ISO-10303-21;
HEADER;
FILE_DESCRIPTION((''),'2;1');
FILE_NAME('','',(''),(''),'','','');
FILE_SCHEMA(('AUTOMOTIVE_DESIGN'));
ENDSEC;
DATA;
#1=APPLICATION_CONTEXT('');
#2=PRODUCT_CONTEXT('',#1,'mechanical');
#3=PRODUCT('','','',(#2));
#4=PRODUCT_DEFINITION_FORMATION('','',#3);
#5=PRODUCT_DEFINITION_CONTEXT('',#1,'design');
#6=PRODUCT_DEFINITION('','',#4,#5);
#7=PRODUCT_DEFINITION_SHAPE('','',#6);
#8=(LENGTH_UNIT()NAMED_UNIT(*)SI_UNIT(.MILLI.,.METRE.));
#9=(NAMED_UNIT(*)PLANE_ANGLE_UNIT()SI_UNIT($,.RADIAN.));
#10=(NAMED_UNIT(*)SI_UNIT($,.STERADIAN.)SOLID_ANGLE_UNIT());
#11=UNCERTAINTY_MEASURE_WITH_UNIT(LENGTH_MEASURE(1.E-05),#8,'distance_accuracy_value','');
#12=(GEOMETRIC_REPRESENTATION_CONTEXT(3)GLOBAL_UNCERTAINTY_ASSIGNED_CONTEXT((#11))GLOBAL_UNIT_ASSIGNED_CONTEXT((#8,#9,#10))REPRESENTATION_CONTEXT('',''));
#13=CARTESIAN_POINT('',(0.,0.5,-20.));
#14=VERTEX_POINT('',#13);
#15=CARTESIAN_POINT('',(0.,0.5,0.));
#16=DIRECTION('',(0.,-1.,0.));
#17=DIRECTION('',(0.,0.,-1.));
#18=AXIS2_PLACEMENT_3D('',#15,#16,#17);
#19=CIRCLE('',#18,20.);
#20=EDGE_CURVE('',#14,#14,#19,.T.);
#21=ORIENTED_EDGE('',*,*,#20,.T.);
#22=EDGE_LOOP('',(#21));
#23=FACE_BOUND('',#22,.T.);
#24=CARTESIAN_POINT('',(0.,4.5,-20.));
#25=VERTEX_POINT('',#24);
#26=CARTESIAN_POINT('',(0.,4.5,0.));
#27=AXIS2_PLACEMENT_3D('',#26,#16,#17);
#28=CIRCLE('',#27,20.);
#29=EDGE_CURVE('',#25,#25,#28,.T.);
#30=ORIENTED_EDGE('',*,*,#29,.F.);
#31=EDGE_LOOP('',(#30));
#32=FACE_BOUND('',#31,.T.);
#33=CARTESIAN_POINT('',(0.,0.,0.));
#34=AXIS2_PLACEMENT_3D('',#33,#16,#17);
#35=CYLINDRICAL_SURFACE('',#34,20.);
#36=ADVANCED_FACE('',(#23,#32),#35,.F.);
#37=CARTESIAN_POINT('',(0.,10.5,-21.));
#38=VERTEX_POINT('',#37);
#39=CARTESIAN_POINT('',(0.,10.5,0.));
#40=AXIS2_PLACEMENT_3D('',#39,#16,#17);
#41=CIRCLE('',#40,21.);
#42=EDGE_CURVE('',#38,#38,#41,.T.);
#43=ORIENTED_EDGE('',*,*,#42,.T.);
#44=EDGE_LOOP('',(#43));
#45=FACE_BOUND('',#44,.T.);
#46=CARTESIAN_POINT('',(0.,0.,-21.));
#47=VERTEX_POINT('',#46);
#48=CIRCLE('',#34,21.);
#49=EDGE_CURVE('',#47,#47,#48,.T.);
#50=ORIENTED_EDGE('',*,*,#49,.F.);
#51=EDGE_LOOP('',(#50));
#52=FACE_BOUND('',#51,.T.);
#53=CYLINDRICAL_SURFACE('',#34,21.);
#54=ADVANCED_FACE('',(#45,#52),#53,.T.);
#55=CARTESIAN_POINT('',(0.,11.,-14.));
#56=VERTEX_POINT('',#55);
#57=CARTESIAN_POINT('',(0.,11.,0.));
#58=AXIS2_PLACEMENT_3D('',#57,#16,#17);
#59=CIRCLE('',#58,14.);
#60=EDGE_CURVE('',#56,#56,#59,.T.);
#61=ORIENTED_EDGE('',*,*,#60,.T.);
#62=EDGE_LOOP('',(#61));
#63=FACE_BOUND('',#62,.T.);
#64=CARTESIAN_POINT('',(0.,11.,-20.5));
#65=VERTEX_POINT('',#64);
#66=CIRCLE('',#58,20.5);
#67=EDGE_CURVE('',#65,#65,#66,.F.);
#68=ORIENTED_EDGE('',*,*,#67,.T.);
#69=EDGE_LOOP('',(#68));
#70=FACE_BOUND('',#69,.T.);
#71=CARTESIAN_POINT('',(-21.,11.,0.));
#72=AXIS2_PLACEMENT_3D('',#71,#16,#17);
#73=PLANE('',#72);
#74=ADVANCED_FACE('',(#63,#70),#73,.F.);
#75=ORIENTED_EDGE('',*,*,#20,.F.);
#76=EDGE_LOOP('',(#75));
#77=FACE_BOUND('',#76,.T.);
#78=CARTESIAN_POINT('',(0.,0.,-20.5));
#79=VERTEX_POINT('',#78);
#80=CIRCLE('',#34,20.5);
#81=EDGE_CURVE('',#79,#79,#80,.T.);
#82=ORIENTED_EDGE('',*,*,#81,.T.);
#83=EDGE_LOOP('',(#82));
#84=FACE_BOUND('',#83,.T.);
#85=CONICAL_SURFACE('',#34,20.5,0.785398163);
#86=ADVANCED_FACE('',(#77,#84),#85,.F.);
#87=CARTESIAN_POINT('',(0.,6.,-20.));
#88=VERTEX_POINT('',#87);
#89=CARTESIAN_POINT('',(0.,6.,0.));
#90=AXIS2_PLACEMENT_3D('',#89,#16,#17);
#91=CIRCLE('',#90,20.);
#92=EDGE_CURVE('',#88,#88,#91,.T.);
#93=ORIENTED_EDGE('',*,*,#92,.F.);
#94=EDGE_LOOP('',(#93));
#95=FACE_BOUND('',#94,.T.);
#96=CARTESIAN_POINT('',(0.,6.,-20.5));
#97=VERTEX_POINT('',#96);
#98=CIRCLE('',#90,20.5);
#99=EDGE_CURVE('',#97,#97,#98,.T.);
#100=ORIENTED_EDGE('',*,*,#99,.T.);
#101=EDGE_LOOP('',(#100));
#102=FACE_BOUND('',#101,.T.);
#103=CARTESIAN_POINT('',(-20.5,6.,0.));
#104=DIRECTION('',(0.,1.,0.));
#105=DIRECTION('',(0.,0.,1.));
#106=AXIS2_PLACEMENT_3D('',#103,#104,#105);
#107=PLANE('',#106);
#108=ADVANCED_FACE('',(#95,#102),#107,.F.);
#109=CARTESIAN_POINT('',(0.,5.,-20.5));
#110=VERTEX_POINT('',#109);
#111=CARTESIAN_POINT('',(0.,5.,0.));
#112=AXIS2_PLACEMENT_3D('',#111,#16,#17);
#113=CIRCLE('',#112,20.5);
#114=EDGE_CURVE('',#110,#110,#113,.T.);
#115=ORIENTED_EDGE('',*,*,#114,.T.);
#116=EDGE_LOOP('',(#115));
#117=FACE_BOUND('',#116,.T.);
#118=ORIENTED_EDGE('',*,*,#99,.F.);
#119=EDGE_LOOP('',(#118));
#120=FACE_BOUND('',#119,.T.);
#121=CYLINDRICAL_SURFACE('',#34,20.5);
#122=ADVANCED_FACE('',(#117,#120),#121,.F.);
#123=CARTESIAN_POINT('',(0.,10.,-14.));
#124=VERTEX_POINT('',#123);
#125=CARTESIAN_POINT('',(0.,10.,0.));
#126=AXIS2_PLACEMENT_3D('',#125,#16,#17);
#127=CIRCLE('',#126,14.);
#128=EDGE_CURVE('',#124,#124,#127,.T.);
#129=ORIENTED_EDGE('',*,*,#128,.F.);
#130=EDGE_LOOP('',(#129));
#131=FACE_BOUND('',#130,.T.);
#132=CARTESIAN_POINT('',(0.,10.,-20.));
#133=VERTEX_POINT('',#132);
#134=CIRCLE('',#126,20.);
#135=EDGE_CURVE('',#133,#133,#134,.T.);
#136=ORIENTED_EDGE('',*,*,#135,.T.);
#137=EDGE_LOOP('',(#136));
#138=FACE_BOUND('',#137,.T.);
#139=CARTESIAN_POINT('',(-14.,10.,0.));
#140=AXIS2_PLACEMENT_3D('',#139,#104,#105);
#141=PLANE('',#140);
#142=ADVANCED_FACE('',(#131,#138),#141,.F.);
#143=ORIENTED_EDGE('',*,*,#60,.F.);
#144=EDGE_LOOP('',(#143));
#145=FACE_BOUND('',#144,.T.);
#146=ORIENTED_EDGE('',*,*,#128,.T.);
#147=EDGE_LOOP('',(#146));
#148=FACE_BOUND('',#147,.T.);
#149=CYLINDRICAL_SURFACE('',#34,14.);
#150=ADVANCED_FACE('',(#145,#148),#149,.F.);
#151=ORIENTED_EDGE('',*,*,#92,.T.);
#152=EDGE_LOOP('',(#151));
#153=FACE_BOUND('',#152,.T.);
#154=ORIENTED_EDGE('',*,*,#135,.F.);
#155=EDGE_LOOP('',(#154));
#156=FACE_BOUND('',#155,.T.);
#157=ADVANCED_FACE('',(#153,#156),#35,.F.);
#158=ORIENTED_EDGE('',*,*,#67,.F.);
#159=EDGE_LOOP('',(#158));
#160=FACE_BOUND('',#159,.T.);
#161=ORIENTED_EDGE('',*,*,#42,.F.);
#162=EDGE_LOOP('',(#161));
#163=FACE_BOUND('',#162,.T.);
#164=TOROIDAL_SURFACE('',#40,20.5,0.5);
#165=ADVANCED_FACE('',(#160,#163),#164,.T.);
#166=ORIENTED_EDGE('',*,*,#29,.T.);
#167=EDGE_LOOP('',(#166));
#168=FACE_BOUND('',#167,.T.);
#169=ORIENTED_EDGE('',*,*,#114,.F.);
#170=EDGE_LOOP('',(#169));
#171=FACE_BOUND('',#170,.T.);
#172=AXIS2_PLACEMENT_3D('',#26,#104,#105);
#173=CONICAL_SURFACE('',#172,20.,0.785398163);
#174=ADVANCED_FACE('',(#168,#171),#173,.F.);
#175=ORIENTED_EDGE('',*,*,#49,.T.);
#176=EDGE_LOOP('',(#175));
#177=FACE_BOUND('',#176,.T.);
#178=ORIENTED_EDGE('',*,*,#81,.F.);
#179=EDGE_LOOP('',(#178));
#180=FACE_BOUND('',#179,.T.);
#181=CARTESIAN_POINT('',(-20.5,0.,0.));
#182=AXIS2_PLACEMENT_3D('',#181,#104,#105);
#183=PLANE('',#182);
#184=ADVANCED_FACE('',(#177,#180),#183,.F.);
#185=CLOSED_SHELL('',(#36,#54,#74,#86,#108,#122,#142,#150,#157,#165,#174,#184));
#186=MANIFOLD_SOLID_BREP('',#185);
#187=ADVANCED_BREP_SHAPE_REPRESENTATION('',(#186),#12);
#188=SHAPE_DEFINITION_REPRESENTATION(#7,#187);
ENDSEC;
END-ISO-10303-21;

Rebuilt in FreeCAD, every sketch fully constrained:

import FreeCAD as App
import Part
import Sketcher

V = App.Vector


def edges_at(feature, points):
    """Names of the edges that pass closest to the given points."""
    edges = feature.Shape.Edges
    near = lambda p: min(range(len(edges)), key=lambda i: edges[i].distToShape(Part.Vertex(*p))[0])
    return sorted({f"Edge{near(p) + 1}" for p in points})

doc = App.newDocument("Part")
body = doc.addObject("PartDesign::Body", "Body")

# Sketch on XY plane
sketch1 = doc.addObject("Sketcher::SketchObject", "Sketch")
body.addObject(sketch1)
sketch1.AttachmentSupport = (doc.XY_Plane, [""])
sketch1.MapMode = "FlatFace"
sketch1.addGeometry([
    Part.LineSegment(V(-21, 11, 0), V(-21, 0, 0)),  # 0
    Part.LineSegment(V(-21, 0, 0), V(-20.5, 0, 0)),  # 1
    Part.LineSegment(V(-20.5, 0, 0), V(-20, 0.5, 0)),  # 2
    Part.LineSegment(V(-20, 0.5, 0), V(-20, 4.5, 0)),  # 3
    Part.LineSegment(V(-20, 4.5, 0), V(-20.5, 5, 0)),  # 4
    Part.LineSegment(V(-20.5, 5, 0), V(-20.5, 6, 0)),  # 5
    Part.LineSegment(V(-20.5, 6, 0), V(-20, 6, 0)),  # 6
    Part.LineSegment(V(-20, 6, 0), V(-20, 10, 0)),  # 7
    Part.LineSegment(V(-20, 10, 0), V(-14, 10, 0)),  # 8
    Part.LineSegment(V(-14, 10, 0), V(-14, 11, 0)),  # 9
    Part.LineSegment(V(-14, 11, 0), V(-21, 11, 0)),  # 10
], False)
sketch1.addConstraint([
    Sketcher.Constraint("Coincident", 0, 2, 1, 1),
    Sketcher.Constraint("Coincident", 1, 2, 2, 1),
    Sketcher.Constraint("Coincident", 2, 2, 3, 1),
    Sketcher.Constraint("Coincident", 3, 2, 4, 1),
    Sketcher.Constraint("Coincident", 4, 2, 5, 1),
    Sketcher.Constraint("Coincident", 5, 2, 6, 1),
    Sketcher.Constraint("Coincident", 6, 2, 7, 1),
    Sketcher.Constraint("Coincident", 7, 2, 8, 1),
    Sketcher.Constraint("Coincident", 8, 2, 9, 1),
    Sketcher.Constraint("Coincident", 9, 2, 10, 1),
    Sketcher.Constraint("Coincident", 10, 2, 0, 1),
    Sketcher.Constraint("Vertical", 0),
    Sketcher.Constraint("Horizontal", 1),
    Sketcher.Constraint("Vertical", 3),
    Sketcher.Constraint("Vertical", 5),
    Sketcher.Constraint("Horizontal", 6),
    Sketcher.Constraint("Vertical", 7),
    Sketcher.Constraint("Horizontal", 8),
    Sketcher.Constraint("Vertical", 9),
    Sketcher.Constraint("Horizontal", 10),
    Sketcher.Constraint("PointOnObject", 0, 2, -1),
    Sketcher.Constraint("Perpendicular", 2, 4),
    Sketcher.Constraint("Vertical", 1, 2, 4, 2),
    Sketcher.Constraint("Vertical", 3, 2, 6, 2),
    Sketcher.Constraint("Equal", 1, 6),
    Sketcher.Constraint("Equal", 3, 7),
    Sketcher.Constraint("Equal", 5, 9),
    Sketcher.Constraint("Equal", 2, 4),
    Sketcher.Constraint("DistanceX", 8, 1, 8, 2, 6.0),
    Sketcher.Constraint("DistanceX", 10, 2, 10, 1, 7.0),
    Sketcher.Constraint("DistanceY", 0, 2, 0, 1, 11.0),
    Sketcher.Constraint("DistanceY", 3, 1, 3, 2, 4.0),
    Sketcher.Constraint("DistanceX", 0, 2, -1, 1, 21.0),
])
revolution = doc.addObject("PartDesign::Revolution", "Revolution")
body.addObject(revolution)
revolution.Profile = sketch1
revolution.ReferenceAxis = (sketch1, ["V_Axis"])
revolution.Angle = 360
doc.recompute()

fillet = doc.addObject("PartDesign::Fillet", "Fillet")
body.addObject(fillet)
fillet.Base = (revolution, edges_at(revolution, [(21, 11, 0)]))
fillet.Radius = 0.5

doc.recompute()
